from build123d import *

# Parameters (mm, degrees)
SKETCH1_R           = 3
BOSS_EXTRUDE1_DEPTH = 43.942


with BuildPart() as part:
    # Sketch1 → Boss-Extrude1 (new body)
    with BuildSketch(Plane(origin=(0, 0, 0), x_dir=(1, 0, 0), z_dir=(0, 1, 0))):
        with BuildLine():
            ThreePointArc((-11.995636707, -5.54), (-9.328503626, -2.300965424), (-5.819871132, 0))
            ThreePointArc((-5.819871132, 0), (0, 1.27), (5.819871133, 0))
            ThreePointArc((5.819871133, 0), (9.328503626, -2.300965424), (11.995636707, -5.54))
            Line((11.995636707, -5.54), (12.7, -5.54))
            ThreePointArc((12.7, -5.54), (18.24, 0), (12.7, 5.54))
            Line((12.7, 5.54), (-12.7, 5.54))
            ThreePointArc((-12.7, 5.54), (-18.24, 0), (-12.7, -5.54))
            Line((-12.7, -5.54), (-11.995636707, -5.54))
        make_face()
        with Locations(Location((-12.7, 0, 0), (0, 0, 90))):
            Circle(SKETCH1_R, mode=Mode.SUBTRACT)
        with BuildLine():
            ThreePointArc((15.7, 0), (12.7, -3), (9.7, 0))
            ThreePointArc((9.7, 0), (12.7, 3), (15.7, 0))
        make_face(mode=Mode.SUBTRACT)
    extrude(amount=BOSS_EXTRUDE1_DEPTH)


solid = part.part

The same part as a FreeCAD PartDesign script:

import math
import FreeCAD as App
import Part
import Sketcher
Q = App.Units.Quantity

doc = App.newDocument("Part")
body = doc.addObject("PartDesign::Body", "Body")

# Sketch on XZ plane
sketch1 = doc.addObject("Sketcher::SketchObject", "Sketch")
body.addObject(sketch1)
sketch1.AttachmentSupport = (doc.XZ_Plane, [""])
sketch1.MapMode = "FlatFace"
sketch1.addGeometry(Part.ArcOfCircle(Part.Circle(App.Vector(0, 12.7, 0), App.Vector(0, 0, 1), 14), math.radians(-149), math.radians(-115)), False)
sketch1.addGeometry(Part.ArcOfCircle(Part.Circle(App.Vector(0, 12.7, 0), App.Vector(0, 0, 1), 14), math.radians(-115), math.radians(-65)), False)
sketch1.addGeometry(Part.ArcOfCircle(Part.Circle(App.Vector(0, 12.7, 0), App.Vector(0, 0, 1), 14), math.radians(-65), math.radians(-31)), False)
sketch1.addGeometry(Part.LineSegment(App.Vector(12, 5.5, 0), App.Vector(12.7, 5.5, 0)), False)
sketch1.addGeometry(Part.ArcOfCircle(Part.Circle(App.Vector(12.7, 0, 0), App.Vector(0, 0, 1), 5.5), math.radians(-90), math.radians(90)), False)
sketch1.addGeometry(Part.LineSegment(App.Vector(12.7, -5.5, 0), App.Vector(-12.7, -5.5, 0)), False)
sketch1.addGeometry(Part.ArcOfCircle(Part.Circle(App.Vector(-12.7, 0, 0), App.Vector(0, 0, 1), 5.5), math.radians(90), math.radians(270)), False)
sketch1.addGeometry(Part.LineSegment(App.Vector(-12.7, 5.5, 0), App.Vector(-12, 5.5, 0)), False)
sketch1.addGeometry(Part.Circle(App.Vector(-12.7, 0, 0), App.Vector(0, 0, 1), 3), False)
sketch1.addGeometry(Part.Circle(App.Vector(12.7, 0, 0), App.Vector(0, 0, 1), 3), False)
sketch1.addConstraint(Sketcher.Constraint("Tangent", 0, 2, 1, 1))
sketch1.addConstraint(Sketcher.Constraint("Tangent", 1, 2, 2, 1))
sketch1.addConstraint(Sketcher.Constraint("Coincident", 2, 2, 3, 1))
sketch1.addConstraint(Sketcher.Constraint("Tangent", 3, 2, 4, 2))
sketch1.addConstraint(Sketcher.Constraint("Tangent", 4, 1, 5, 1))
sketch1.addConstraint(Sketcher.Constraint("Tangent", 5, 2, 6, 2))
sketch1.addConstraint(Sketcher.Constraint("Tangent", 6, 1, 7, 1))
sketch1.addConstraint(Sketcher.Constraint("Coincident", 7, 2, 0, 1))
sketch1.addConstraint(Sketcher.Constraint("Horizontal", 3))
sketch1.addConstraint(Sketcher.Constraint("Horizontal", 5))
sketch1.addConstraint(Sketcher.Constraint("Horizontal", 7))
sketch1.addConstraint(Sketcher.Constraint("Coincident", 2, 3, 0, 3))
sketch1.addConstraint(Sketcher.Constraint("Coincident", 8, 3, 6, 3))
sketch1.addConstraint(Sketcher.Constraint("Coincident", 9, 3, 4, 3))
sketch1.addConstraint(Sketcher.Constraint("Equal", 4, 6))
sketch1.addConstraint(Sketcher.Constraint("Equal", 8, 9))
sketch1.addConstraint(Sketcher.Constraint("Symmetric", 4, 3, 6, 3, -1, 1))
sketch1.addConstraint(Sketcher.Constraint("Symmetric", 0, 2, 1, 2, -1, 1))
sketch1.addConstraint(Sketcher.Constraint("PointOnObject", 0, 3, -2))
sketch1.addConstraint(Sketcher.Constraint("DistanceX", 5, 2, 5, 1, Q("1 in")))
sketch1.addConstraint(Sketcher.Constraint("Radius", 0, Q("0.55 in")))
sketch1.addConstraint(Sketcher.Constraint("DistanceY", -1, 1, 0, 3, Q("0.5 in")))
sketch1.addConstraint(Sketcher.Constraint("Diameter", 8, Q("6 mm")))
sketch1.addConstraint(Sketcher.Constraint("Radius", 4, Q("5.54 mm")))
pad1 = doc.addObject("PartDesign::Pad", "Pad")
body.addObject(pad1)
pad1.Profile = sketch1
pad1.Length = Q("1.73 in")
pad1.Reversed = True

doc.recompute()
